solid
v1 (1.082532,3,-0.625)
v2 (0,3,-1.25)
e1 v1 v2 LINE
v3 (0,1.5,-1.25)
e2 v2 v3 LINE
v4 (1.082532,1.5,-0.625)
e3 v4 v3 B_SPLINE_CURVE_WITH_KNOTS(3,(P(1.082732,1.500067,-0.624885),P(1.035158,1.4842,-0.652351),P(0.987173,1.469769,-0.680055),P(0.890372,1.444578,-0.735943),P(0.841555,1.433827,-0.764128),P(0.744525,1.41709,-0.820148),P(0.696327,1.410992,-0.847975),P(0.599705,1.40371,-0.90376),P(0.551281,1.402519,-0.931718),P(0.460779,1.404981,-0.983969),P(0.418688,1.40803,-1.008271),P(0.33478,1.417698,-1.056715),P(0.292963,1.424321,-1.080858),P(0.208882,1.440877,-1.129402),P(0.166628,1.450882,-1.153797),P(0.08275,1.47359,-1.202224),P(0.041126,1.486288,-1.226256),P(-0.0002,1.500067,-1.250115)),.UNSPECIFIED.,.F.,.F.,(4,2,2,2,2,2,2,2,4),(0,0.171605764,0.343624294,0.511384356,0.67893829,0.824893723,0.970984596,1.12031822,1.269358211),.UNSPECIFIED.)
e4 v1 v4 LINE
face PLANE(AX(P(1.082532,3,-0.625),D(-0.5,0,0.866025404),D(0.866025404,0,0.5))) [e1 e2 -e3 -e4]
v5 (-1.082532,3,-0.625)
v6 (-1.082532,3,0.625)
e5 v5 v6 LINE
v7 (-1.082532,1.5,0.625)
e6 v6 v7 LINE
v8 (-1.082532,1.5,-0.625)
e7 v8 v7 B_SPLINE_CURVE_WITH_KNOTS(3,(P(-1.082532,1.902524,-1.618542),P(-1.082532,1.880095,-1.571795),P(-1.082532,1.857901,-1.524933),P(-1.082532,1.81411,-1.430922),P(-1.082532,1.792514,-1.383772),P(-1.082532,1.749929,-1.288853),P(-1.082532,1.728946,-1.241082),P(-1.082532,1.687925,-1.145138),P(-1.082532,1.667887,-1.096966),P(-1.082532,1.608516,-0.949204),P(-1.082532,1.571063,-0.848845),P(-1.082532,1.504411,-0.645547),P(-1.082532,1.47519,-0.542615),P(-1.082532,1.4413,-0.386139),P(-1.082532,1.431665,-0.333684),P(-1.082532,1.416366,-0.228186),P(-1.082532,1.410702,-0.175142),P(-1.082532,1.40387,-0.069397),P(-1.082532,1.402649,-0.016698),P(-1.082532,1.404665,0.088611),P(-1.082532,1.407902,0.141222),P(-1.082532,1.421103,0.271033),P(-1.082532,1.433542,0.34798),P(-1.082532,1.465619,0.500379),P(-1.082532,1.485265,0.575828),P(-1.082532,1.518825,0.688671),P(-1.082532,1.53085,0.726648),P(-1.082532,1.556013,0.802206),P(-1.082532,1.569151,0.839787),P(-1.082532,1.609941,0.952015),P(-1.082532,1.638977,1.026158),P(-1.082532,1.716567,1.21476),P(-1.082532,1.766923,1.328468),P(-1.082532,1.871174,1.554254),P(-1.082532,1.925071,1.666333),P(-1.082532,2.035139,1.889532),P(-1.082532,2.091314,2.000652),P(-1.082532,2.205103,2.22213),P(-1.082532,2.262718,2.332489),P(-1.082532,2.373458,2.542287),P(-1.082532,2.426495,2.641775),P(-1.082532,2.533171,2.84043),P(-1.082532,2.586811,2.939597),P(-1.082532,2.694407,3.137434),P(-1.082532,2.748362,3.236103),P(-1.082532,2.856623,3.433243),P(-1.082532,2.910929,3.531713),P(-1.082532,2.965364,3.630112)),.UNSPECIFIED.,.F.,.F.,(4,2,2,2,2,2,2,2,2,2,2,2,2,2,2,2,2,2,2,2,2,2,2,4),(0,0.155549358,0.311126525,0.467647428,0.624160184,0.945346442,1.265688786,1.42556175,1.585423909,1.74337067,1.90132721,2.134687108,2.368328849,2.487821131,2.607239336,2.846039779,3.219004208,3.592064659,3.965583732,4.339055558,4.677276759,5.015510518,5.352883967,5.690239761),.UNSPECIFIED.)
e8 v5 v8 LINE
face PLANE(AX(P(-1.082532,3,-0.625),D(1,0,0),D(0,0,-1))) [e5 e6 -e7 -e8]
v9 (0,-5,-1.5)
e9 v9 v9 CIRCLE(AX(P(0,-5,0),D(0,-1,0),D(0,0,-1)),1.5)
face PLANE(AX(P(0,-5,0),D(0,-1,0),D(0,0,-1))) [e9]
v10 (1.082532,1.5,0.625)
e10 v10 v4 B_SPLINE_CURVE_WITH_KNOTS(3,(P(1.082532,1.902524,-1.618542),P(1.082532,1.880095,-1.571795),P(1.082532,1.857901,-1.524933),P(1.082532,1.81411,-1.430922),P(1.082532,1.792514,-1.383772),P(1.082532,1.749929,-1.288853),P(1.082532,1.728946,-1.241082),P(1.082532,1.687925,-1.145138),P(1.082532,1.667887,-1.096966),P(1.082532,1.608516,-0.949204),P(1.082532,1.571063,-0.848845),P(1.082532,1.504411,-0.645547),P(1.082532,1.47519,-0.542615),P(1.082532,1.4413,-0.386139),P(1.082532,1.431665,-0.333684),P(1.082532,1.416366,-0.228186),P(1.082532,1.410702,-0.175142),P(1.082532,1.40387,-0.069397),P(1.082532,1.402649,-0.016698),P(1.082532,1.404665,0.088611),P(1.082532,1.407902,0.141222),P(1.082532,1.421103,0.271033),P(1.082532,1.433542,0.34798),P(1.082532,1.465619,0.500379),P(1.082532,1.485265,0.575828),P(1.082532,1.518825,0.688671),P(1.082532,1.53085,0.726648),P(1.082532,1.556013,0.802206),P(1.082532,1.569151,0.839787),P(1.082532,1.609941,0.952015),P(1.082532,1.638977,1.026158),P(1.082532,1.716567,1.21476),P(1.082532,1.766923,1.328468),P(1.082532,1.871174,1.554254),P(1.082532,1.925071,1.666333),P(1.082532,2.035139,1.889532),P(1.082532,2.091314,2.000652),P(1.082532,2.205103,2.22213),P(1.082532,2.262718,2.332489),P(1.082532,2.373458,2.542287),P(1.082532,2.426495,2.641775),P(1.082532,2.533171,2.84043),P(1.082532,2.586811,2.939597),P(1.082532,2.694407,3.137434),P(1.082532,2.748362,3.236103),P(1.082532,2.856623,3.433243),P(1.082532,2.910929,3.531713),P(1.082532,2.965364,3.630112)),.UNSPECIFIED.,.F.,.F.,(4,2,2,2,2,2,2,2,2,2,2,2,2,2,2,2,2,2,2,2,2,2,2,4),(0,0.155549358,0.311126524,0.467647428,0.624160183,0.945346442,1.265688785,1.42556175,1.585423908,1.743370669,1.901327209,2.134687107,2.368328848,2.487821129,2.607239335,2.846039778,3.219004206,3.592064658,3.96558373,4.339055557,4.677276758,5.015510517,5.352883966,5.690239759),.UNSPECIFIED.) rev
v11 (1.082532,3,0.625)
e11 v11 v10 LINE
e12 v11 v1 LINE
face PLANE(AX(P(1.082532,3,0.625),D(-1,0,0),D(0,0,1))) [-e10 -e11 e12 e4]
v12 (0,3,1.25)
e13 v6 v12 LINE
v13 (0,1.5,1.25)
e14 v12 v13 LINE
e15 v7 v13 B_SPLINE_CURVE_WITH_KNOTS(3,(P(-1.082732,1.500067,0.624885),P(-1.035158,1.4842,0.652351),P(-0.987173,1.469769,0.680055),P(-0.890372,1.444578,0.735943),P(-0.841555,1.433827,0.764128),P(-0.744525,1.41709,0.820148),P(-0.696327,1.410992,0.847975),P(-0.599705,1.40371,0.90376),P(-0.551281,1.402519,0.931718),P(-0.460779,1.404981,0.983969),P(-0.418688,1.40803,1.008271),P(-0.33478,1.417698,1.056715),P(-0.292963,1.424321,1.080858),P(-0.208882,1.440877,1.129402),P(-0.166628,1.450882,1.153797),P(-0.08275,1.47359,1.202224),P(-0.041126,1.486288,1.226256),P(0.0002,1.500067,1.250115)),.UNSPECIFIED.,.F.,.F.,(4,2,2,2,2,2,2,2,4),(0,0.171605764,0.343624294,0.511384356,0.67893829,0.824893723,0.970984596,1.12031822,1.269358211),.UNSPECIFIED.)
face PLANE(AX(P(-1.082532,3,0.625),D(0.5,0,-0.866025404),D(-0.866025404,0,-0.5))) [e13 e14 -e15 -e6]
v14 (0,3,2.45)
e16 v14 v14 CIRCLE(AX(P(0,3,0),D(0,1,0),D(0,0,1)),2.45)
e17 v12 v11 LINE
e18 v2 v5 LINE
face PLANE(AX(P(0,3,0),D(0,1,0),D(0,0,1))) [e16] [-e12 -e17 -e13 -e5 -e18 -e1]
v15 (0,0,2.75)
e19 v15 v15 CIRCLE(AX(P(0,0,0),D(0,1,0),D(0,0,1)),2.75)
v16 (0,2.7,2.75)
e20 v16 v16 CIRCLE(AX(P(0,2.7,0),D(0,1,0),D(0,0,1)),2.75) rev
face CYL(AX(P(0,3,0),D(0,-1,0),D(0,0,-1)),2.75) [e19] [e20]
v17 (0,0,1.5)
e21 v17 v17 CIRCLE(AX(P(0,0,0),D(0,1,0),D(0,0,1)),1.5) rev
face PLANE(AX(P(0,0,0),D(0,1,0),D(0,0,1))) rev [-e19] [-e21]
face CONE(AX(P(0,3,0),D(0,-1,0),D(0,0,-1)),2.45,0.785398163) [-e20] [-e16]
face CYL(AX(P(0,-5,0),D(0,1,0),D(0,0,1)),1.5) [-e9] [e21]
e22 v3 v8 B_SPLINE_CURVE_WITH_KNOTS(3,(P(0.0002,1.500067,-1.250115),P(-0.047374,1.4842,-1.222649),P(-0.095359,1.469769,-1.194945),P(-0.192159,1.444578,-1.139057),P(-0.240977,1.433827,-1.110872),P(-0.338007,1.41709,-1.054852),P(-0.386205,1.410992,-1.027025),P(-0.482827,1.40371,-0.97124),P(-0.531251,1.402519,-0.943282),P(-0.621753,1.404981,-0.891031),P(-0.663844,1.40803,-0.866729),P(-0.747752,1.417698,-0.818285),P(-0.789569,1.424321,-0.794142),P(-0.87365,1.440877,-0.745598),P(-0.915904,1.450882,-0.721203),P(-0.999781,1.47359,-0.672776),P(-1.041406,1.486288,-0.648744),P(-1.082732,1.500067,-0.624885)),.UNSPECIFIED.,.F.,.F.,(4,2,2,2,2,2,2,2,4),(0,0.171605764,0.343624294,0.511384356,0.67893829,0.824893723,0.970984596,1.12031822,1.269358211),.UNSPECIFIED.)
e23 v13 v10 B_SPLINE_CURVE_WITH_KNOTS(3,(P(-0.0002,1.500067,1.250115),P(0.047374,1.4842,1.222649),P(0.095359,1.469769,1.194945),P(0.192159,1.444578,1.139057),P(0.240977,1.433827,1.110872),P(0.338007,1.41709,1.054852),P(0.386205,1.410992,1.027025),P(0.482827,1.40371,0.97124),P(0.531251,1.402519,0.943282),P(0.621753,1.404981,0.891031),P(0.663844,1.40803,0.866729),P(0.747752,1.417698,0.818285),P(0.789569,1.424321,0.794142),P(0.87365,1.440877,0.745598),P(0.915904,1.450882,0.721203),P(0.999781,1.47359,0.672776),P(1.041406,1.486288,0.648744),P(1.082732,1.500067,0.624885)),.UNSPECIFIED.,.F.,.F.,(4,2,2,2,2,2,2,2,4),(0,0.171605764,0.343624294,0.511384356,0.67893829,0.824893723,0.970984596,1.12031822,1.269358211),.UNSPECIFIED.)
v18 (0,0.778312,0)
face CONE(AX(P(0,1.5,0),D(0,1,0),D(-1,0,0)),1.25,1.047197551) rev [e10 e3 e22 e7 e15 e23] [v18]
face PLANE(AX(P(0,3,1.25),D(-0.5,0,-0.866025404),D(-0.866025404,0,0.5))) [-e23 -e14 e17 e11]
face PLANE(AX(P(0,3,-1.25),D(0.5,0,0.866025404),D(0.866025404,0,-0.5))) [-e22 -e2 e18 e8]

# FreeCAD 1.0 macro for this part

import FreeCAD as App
import Part
import Sketcher

V = App.Vector
Q = App.Units.Quantity


def edges_at(feature, points):
    """Names of the edges that pass closest to the given points."""
    edges = feature.Shape.Edges
    near = lambda p: min(range(len(edges)), key=lambda i: edges[i].distToShape(Part.Vertex(*p))[0])
    return sorted({f"Edge{near(p) + 1}" for p in points})


def add_polygon(sketch, points):
    """Adds a closed chain of lines whose ends are joined by coincident constraints."""
    first, n = sketch.GeometryCount, len(points)
    for a, b in zip(points, points[1:] + points[:1]):
        sketch.addGeometry(Part.LineSegment(App.Vector(*a, 0), App.Vector(*b, 0)), False)
    for i in range(n):
        sketch.addConstraint(Sketcher.Constraint("Coincident", first + i, 2, first + (i + 1) % n, 1))

doc = App.newDocument("Part")
body = doc.addObject("PartDesign::Body", "Body")

# Sketch on XZ plane
sketch1 = body.newObject("Sketcher::SketchObject", "Sketch")
sketch1.AttachmentSupport = (doc.getObject("XZ_Plane"), [""])
sketch1.MapMode = "FlatFace"
sketch1.addGeometry(Part.Circle(V(0, 0, 0), V(0, 0, 1), 2.8), False)  # 0
add_polygon(sketch1, [(-1.1, -0.6), (0, -1.2), (1.1, -0.6), (1.1, 0.6), (0, 1.2), (-1.1, 0.6)])  # lines 1-6
sketch1.addConstraint([
    Sketcher.Constraint("Vertical", 3),
    Sketcher.Constraint("Vertical", 6),
    Sketcher.Constraint("Coincident", 0, 3, -1, 1),
    Sketcher.Constraint("Symmetric", 1, 2, 4, 2, -1, 1),
    Sketcher.Constraint("Symmetric", 2, 2, 5, 2, -1, 1),
    Sketcher.Constraint("PointOnObject", 1, 2, -2),
    Sketcher.Constraint("Parallel", 1, 4),
    Sketcher.Constraint("Horizontal", 3, 2, 5, 2),
    Sketcher.Constraint("Diameter", 0, Q("5.5 mm")),
    Sketcher.Constraint("Angle", 1, Q("-30 deg")),
    Sketcher.Constraint("DistanceY", 3, 1, 3, 2, Q("1.25 mm")),
    Sketcher.Constraint("DistanceY", 1, 2, 4, 2, Q("2.5 mm")),
])
pad1 = body.newObject("PartDesign::Pad", "Pad")
pad1.Profile = sketch1
pad1.Length = 3
pad1.Reversed = True
doc.recompute()

chamfer = body.newObject("PartDesign::Chamfer", "Chamfer")
chamfer.Base = (pad1, edges_at(pad1, [(0, 3, -2.75)]))
chamfer.Size = 0.3

# Sketch on XY plane
sketch2 = body.newObject("Sketcher::SketchObject", "Sketch001")
sketch2.AttachmentSupport = (doc.getObject("XY_Plane"), [""])
sketch2.MapMode = "FlatFace"
add_polygon(sketch2, [(0, 0.8), (0, 0), (2.8, 0), (2.8, 1.5), (1.2, 1.5)])  # lines 0-4
sketch2.addConstraint([
    Sketcher.Constraint("Vertical", 0),
    Sketcher.Constraint("Horizontal", 1),
    Sketcher.Constraint("Vertical", 2),
    Sketcher.Constraint("Horizontal", 3),
    Sketcher.Constraint("Coincident", 0, 2, -1, 1),
    Sketcher.Constraint("Equal", 3, 2),
    Sketcher.Constraint("Angle", 4, Q("-150 deg")),
    Sketcher.Constraint("DistanceX", 3, 2, 3, 1, Q("1.5 mm")),
    Sketcher.Constraint("DistanceX", 1, 1, 1, 2, Q("2.75 mm")),
])
revolution = body.newObject("PartDesign::Revolution", "Revolution")
revolution.Profile = sketch2
revolution.ReferenceAxis = (sketch2, ["V_Axis"])
revolution.Angle = 360

# Sketch on XZ plane
sketch3 = body.newObject("Sketcher::SketchObject", "Sketch002")
sketch3.AttachmentSupport = (doc.getObject("XZ_Plane"), [""])
sketch3.MapMode = "FlatFace"
sketch3.addGeometry(Part.Circle(V(0, 0, 0), V(0, 0, 1), 1.5), False)
sketch3.addConstraint([
    Sketcher.Constraint("Coincident", 0, 3, -1, 1),
    Sketcher.Constraint("Diameter", 0, Q("3 mm")),
])
pad2 = body.newObject("PartDesign::Pad", "Pad001")
pad2.Profile = sketch3
pad2.Length = 5

doc.recompute()
